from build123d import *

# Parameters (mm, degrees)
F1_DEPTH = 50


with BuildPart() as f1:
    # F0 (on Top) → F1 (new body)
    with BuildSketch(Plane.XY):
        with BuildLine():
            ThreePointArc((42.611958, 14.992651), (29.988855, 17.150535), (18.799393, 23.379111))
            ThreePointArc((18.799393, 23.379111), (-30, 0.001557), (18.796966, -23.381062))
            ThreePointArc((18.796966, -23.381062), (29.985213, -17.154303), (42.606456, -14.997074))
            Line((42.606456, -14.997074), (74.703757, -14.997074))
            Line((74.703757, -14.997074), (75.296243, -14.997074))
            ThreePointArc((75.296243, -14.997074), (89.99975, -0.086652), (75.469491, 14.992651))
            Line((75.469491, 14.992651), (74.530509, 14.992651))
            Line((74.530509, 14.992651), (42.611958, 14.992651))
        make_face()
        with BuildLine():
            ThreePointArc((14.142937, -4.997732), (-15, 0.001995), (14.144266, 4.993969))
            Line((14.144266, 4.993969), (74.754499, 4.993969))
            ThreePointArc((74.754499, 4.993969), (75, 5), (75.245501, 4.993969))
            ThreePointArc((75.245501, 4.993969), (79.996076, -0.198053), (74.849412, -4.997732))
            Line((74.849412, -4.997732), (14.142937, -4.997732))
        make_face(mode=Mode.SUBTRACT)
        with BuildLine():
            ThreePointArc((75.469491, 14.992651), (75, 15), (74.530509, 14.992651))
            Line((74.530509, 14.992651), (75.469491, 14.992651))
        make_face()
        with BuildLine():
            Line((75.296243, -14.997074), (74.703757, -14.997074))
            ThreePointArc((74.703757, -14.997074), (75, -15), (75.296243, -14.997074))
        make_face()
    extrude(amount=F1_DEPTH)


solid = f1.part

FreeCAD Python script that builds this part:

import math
import FreeCAD as App
import Part
import Sketcher
Q = App.Units.Quantity

doc = App.newDocument("Part")
params = doc.addObject("Spreadsheet::Sheet", "Params")
for row, (alias, value) in enumerate([
    ("sketch1_radius", "37.999998 mm"),
    ("sketch1_radius2", "30 mm"),
    ("sketch1_radius3", "15 mm"),
    ("sketch1_radius4", "15 mm"),
    ("sketch1_radius5", "5 mm"),
    ("pad1_length", "50 mm"),
], start=1):
    params.set(f"A{row}", alias)
    params.set(f"B{row}", "=" + value)
    params.setAlias(f"B{row}", alias)

body = doc.addObject("PartDesign::Body", "Body")

# Sketch on XY plane
sketch1 = doc.addObject("Sketcher::SketchObject", "Sketch")
body.addObject(sketch1)
sketch1.AttachmentSupport = (doc.XY_Plane, [""])
sketch1.MapMode = "FlatFace"
sketch1.addGeometry([
    Part.ArcOfCircle(Part.Circle(App.Vector(42.611957, 52.992649, 0), App.Vector(0, 0, 1), 37.999998), math.radians(-128.803135), math.radians(-89.999999)),  # 0
    Part.ArcOfCircle(Part.Circle(App.Vector(0, 0, 0), App.Vector(0, 0, 1), 30), math.radians(51.196866), math.radians(308.797186)),  # 1
    Part.ArcOfCircle(Part.Circle(App.Vector(42.606455, -52.99707, 0), App.Vector(0, 0, 1), 37.999996), math.radians(89.999999), math.radians(128.797188)),  # 2
    Part.LineSegment(App.Vector(42.606456, -14.997074, 0), App.Vector(74.703757, -14.997074, 0)),  # 3
    Part.ArcOfCircle(Part.Circle(App.Vector(75, -0.001969, 0), App.Vector(0, 0, 1), 14.998031), math.radians(-91.131787), math.radians(-88.868213)),  # 4
    Part.ArcOfCircle(Part.Circle(App.Vector(75, 0, 0), App.Vector(0, 0, 1), 15), math.radians(-88.868363), math.radians(88.206385)),  # 5
    Part.ArcOfCircle(Part.Circle(App.Vector(75, -0.000395, 0), App.Vector(0, 0, 1), 15.000395), math.radians(88.206431), math.radians(91.793569)),  # 6
    Part.LineSegment(App.Vector(74.530509, 14.992651, 0), App.Vector(42.611958, 14.992651, 0)),  # 7
    Part.LineSegment(App.Vector(74.849412, -4.997732, 0), App.Vector(14.142937, -4.997732, 0)),  # 8
    Part.ArcOfCircle(Part.Circle(App.Vector(0, 0, 0), App.Vector(0, 0, 1), 15), math.radians(19.44679), math.radians(340.537969)),  # 9
    Part.LineSegment(App.Vector(14.144266, 4.993969, 0), App.Vector(74.754499, 4.993969, 0)),  # 10
    Part.ArcOfCircle(Part.Circle(App.Vector(75, 0.000239, 0), App.Vector(0, 0, 1), 4.999761), math.radians(87.185499), math.radians(92.814501)),  # 11
    Part.ArcOfCircle(Part.Circle(App.Vector(75, 0, 0), App.Vector(0, 0, 1), 5), math.radians(-91.725873), math.radians(87.185635)),  # 12
], False)
sketch1.addConstraint([
    Sketcher.Constraint("Coincident", 0, 1, 1, 1),
    Sketcher.Constraint("Coincident", 1, 2, 2, 2),
    Sketcher.Constraint("Coincident", 2, 1, 3, 1),
    Sketcher.Constraint("Coincident", 3, 2, 4, 1),
    Sketcher.Constraint("Coincident", 4, 2, 5, 1),
    Sketcher.Constraint("Coincident", 5, 2, 6, 1),
    Sketcher.Constraint("Coincident", 6, 2, 7, 1),
    Sketcher.Constraint("Coincident", 7, 2, 0, 2),
    Sketcher.Constraint("Coincident", 8, 2, 9, 2),
    Sketcher.Constraint("Coincident", 9, 1, 10, 1),
    Sketcher.Constraint("Coincident", 10, 2, 11, 2),
    Sketcher.Constraint("Coincident", 11, 1, 12, 2),
    Sketcher.Constraint("Coincident", 12, 1, 8, 1),
    Sketcher.Constraint("Horizontal", 3),
    Sketcher.Constraint("Horizontal", 7),
    Sketcher.Constraint("Horizontal", 8),
    Sketcher.Constraint("Horizontal", 10),
    Sketcher.Constraint("Coincident", 1, 3, -1, 1),
    Sketcher.Constraint("Coincident", 9, 3, -1, 1),
    Sketcher.Constraint("Coincident", 12, 3, 5, 3),
    Sketcher.Constraint("PointOnObject", 5, 3, -1),
    Sketcher.Constraint("Radius", 0, Q("37.999998 mm")),
    Sketcher.Constraint("Radius", 1, Q("30 mm")),
    Sketcher.Constraint("Radius", 5, Q("15 mm")),
    Sketcher.Constraint("Radius", 9, Q("15 mm")),
    Sketcher.Constraint("Radius", 12, Q("5 mm")),
    Sketcher.Constraint("DistanceX", -1, 1, 4, 3, Q("75 mm")),
    Sketcher.Constraint("DistanceX", -1, 1, 5, 3, Q("75 mm")),
    Sketcher.Constraint("DistanceX", -1, 1, 6, 3, Q("75 mm")),
    Sketcher.Constraint("DistanceX", -1, 1, 11, 3, Q("75 mm")),
    Sketcher.Constraint("Radius", 4, Q("14.998031 mm")),
    Sketcher.Constraint("Radius", 11, Q("4.999761 mm")),
    Sketcher.Constraint("DistanceX", 3, 1, 3, 2, Q("32.097301 mm")),
    Sketcher.Constraint("Radius", 2, Q("37.999996 mm")),
    Sketcher.Constraint("Radius", 6, Q("15.000395 mm")),
    Sketcher.Constraint("DistanceX", 7, 2, 7, 1, Q("31.918551 mm")),
    Sketcher.Constraint("DistanceX", -1, 1, 10, 2, Q("74.754499 mm")),
    Sketcher.Constraint("DistanceX", -1, 1, 11, 1, Q("75.245501 mm")),
    Sketcher.Constraint("DistanceY", 2, 3, 4, 3, Q("52.995101 mm")),
    Sketcher.Constraint("DistanceX", 2, 1, 7, 2, Q("0.005502 mm")),
    Sketcher.Constraint("DistanceY", 8, 2, 9, 1, Q("9.991701 mm")),
    Sketcher.Constraint("DistanceX", 9, 1, 1, 2, Q("4.6527 mm")),
    Sketcher.Constraint("DistanceY", -1, 1, 0, 1, Q("23.379111 mm")),
    Sketcher.Constraint("DistanceX", -1, 1, 5, 2, Q("75.469491 mm")),
    Sketcher.Constraint("DistanceY", 4, 2, 6, 3, Q("14.996679 mm")),
])
sketch1.setExpression("Constraints[21]", "Params.sketch1_radius")
sketch1.setExpression("Constraints[22]", "Params.sketch1_radius2")
sketch1.setExpression("Constraints[23]", "Params.sketch1_radius3")
sketch1.setExpression("Constraints[24]", "Params.sketch1_radius4")
sketch1.setExpression("Constraints[25]", "Params.sketch1_radius5")
pad1 = doc.addObject("PartDesign::Pad", "Pad")
body.addObject(pad1)
pad1.Profile = sketch1
pad1.setExpression("Length", "Params.pad1_length")

doc.recompute()
